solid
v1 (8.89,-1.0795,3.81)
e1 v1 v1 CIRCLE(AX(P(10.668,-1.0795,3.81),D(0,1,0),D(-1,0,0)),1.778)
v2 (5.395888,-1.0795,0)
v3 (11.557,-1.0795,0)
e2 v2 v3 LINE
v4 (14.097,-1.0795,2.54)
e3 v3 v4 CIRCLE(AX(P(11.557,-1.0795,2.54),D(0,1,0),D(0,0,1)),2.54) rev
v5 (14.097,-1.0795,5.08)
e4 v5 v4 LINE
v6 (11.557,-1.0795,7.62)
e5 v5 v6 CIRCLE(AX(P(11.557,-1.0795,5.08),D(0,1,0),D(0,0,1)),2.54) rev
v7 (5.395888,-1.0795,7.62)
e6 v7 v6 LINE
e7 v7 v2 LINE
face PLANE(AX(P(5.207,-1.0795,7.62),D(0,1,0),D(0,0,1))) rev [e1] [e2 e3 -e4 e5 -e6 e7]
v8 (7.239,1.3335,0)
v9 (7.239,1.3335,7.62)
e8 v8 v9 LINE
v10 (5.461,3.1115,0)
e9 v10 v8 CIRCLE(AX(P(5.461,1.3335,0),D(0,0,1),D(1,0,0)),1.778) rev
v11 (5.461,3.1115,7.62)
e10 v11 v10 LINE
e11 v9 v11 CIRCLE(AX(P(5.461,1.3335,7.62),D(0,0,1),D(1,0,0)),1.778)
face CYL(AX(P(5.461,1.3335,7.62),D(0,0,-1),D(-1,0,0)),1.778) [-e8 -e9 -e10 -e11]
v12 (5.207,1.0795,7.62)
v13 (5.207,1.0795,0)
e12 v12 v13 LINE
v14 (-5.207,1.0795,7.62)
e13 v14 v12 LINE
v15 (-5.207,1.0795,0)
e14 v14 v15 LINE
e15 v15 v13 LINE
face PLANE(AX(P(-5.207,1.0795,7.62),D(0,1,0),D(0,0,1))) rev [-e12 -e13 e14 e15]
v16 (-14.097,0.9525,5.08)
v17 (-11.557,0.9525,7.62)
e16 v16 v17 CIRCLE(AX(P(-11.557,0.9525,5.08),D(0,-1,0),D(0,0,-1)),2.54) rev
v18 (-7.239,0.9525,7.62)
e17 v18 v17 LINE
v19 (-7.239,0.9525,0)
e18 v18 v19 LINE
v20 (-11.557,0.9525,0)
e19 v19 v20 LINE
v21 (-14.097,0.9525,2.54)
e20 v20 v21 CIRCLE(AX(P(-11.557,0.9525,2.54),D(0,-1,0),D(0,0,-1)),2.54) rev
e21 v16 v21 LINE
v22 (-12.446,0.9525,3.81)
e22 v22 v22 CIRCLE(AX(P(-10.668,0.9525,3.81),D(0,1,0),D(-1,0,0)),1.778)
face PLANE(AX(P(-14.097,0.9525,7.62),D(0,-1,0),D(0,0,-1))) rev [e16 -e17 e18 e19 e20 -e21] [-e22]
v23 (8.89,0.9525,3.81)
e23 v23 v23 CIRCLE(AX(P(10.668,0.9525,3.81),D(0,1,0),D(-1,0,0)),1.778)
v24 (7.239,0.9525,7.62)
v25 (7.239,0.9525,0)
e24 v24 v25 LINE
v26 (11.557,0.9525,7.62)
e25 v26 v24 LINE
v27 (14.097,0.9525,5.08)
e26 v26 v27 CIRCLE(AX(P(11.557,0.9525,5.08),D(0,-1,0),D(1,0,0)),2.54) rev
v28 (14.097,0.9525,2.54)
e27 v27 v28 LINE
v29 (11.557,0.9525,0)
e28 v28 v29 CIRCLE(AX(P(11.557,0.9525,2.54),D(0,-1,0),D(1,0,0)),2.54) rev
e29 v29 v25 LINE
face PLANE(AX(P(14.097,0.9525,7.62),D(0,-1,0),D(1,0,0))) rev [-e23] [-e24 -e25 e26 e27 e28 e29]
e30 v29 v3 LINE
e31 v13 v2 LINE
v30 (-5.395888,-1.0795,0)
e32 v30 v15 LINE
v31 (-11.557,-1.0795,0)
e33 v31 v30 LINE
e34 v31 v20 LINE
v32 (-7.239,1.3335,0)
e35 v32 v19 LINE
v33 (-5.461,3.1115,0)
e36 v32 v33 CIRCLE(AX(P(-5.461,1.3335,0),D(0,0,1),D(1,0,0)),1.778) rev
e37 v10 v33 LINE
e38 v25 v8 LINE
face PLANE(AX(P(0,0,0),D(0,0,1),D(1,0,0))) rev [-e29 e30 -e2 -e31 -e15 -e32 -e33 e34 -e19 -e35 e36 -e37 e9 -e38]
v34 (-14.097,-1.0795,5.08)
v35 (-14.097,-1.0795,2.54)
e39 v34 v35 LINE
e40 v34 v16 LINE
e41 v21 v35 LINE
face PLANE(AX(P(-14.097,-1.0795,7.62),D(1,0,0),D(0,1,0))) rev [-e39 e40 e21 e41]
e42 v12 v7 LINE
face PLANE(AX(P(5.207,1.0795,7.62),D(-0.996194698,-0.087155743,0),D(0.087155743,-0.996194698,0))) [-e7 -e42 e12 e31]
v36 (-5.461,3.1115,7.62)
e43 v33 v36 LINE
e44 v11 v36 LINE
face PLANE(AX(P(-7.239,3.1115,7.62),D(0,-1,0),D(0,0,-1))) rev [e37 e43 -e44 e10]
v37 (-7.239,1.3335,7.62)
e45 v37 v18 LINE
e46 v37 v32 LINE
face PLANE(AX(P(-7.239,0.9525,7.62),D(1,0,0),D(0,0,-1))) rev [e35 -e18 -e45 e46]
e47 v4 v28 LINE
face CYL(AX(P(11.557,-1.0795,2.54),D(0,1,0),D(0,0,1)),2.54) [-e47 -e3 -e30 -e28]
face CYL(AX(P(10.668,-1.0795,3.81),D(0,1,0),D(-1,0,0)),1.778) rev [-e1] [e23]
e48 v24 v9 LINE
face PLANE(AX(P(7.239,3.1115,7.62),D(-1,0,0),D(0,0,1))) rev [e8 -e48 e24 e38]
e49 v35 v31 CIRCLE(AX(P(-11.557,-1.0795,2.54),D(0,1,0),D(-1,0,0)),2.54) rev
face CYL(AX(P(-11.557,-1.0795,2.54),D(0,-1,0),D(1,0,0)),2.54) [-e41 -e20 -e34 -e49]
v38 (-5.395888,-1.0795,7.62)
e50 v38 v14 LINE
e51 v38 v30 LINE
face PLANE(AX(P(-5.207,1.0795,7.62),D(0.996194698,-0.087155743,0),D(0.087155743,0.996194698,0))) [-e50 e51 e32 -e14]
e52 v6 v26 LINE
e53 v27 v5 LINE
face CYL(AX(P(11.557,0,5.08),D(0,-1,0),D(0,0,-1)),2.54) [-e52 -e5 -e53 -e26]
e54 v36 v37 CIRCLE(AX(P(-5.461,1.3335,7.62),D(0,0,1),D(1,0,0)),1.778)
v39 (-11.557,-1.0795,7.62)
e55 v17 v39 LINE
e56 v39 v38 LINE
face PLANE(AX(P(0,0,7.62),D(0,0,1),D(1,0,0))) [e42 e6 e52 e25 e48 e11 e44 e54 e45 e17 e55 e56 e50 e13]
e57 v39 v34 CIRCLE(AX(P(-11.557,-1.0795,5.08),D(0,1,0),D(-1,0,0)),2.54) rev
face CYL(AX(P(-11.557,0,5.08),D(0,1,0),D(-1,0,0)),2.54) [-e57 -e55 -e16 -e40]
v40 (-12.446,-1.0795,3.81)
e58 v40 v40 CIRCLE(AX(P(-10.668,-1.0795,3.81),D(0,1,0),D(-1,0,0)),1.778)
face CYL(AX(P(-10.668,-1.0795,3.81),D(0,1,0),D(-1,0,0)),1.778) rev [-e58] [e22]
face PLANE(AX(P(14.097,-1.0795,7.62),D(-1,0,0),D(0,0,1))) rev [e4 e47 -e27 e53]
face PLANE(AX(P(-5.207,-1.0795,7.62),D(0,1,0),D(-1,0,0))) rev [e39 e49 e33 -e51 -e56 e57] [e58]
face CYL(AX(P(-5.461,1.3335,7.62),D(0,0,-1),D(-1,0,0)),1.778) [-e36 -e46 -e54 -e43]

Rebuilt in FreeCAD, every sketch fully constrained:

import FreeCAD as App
import Part
import Sketcher
Q = App.Units.Quantity


def edges_at(feature, points):
    """Names of the edges that pass closest to the given points."""
    edges = feature.Shape.Edges
    near = lambda p: min(range(len(edges)), key=lambda i: edges[i].distToShape(Part.Vertex(*p))[0])
    return sorted({f"Edge{near(p) + 1}" for p in points})


def faces_at(feature, points):
    """Names of the faces that lie closest to the given points."""
    faces = feature.Shape.Faces
    near = lambda p: min(range(len(faces)), key=lambda i: faces[i].distToShape(Part.Vertex(*p))[0])
    return sorted({f"Face{near(p) + 1}" for p in points})


def add_polygon(sketch, points):
    """Adds a closed chain of lines whose ends are joined by coincident constraints."""
    first, n = sketch.GeometryCount, len(points)
    for a, b in zip(points, points[1:] + points[:1]):
        sketch.addGeometry(Part.LineSegment(App.Vector(*a, 0), App.Vector(*b, 0)), False)
    for i in range(n):
        sketch.addConstraint(Sketcher.Constraint("Coincident", first + i, 2, first + (i + 1) % n, 1))

doc = App.newDocument("Part")
body = doc.addObject("PartDesign::Body", "Body")

sketch1 = body.newObject("Sketcher::SketchObject", "Sketch")
sketch1.AttachmentSupport = (doc.getObject("XY_Plane"), [""])
sketch1.MapMode = "FlatFace"
add_polygon(sketch1, [(-7.2, 3.1), (-7.2, 1), (-14.1, 1), (-14.1, -1.1), (-5.2, -1.1), (-5.2, 1.1), (5.2, 1.1), (5.2, -1.1), (14.1, -1.1), (14.1, 1), (7.2, 1), (7.2, 3.1)])
sketch1.addConstraint(Sketcher.Constraint("Vertical", 0))
sketch1.addConstraint(Sketcher.Constraint("Horizontal", 1))
sketch1.addConstraint(Sketcher.Constraint("Vertical", 2))
sketch1.addConstraint(Sketcher.Constraint("Horizontal", 3))
sketch1.addConstraint(Sketcher.Constraint("Vertical", 4))
sketch1.addConstraint(Sketcher.Constraint("Horizontal", 5))
sketch1.addConstraint(Sketcher.Constraint("Vertical", 6))
sketch1.addConstraint(Sketcher.Constraint("Horizontal", 7))
sketch1.addConstraint(Sketcher.Constraint("Vertical", 8))
sketch1.addConstraint(Sketcher.Constraint("Horizontal", 9))
sketch1.addConstraint(Sketcher.Constraint("Vertical", 10))
sketch1.addConstraint(Sketcher.Constraint("Horizontal", 11))
sketch1.addConstraint(Sketcher.Constraint("Symmetric", 3, 2, 5, 2, -1, 1))
sketch1.addConstraint(Sketcher.Constraint("Symmetric", 2, 2, 7, 2, -2))
sketch1.addConstraint(Sketcher.Constraint("Symmetric", 0, 2, 9, 2, -2))
sketch1.addConstraint(Sketcher.Constraint("Equal", 0, 4))
sketch1.addConstraint(Sketcher.Constraint("DistanceX", 1, 2, 1, 1, Q("0.27 in")))
sketch1.addConstraint(Sketcher.Constraint("DistanceX", 3, 1, 3, 2, Q("0.35 in")))
sketch1.addConstraint(Sketcher.Constraint("DistanceX", 5, 1, 5, 2, Q("0.41 in")))
sketch1.addConstraint(Sketcher.Constraint("DistanceY", 2, 2, 2, 1, Q("0.08 in")))
sketch1.addConstraint(Sketcher.Constraint("DistanceY", 0, 2, 0, 1, Q("0.085 in")))
pad1 = body.newObject("PartDesign::Pad", "Pad")
pad1.Profile = sketch1
pad1.Length = Q("0.3 in")

sketch2 = body.newObject("Sketcher::SketchObject", "Sketch001")
sketch2.AttachmentSupport = (doc.getObject("XZ_Plane"), [""])
sketch2.MapMode = "FlatFace"
sketch2.AttachmentOffset = App.Placement(App.Vector(0, 0, -0.0375 * 25.4), App.Rotation())
sketch2.addGeometry(Part.Circle(App.Vector(-10.7, 3.8, 0), App.Vector(0, 0, 1), 1.8), False)
sketch2.addGeometry(Part.Circle(App.Vector(10.7, 3.8, 0), App.Vector(0, 0, 1), 1.8), False)
sketch2.addConstraint(Sketcher.Constraint("Equal", 0, 1))
sketch2.addConstraint(Sketcher.Constraint("Symmetric", 0, 3, 1, 3, -2))
sketch2.addConstraint(Sketcher.Constraint("Diameter", 0, Q("0.14 in")))
sketch2.addConstraint(Sketcher.Constraint("DistanceX", 0, 3, -1, 1, Q("0.42 in")))
sketch2.addConstraint(Sketcher.Constraint("DistanceY", -1, 1, 0, 3, Q("0.15 in")))
pocket1 = body.newObject("PartDesign::Pocket", "Pocket")
pocket1.Profile = sketch2
pocket1.Type = "ThroughAll"
pocket1.Reversed = True
doc.recompute()

fillet = body.newObject("PartDesign::Fillet", "Fillet")
fillet.Base = (pocket1, edges_at(pocket1, [
    (-14.097, -0.064, 0),
    (14.097, -0.064, 0),
    (-14.097, -0.064, 7.62),
    (14.097, -0.064, 7.62),
]))
fillet.Radius = Q("0.1 in")
doc.recompute()

fillet2 = body.newObject("PartDesign::Fillet", "Fillet001")
fillet2.Base = (fillet, edges_at(fillet, [(-7.239, 3.111, 3.81), (7.239, 3.111, 3.81)]))
fillet2.Radius = Q("0.07 in")
doc.recompute()

datumplane = body.newObject("PartDesign::Plane", "DatumPlane")
datumplane.AttachmentSupport = (doc.getObject("XZ_Plane"), [""])
datumplane.MapMode = "FlatFace"
datumplane.AttachmentOffset = App.Placement(App.Vector(0, 0, -0.0425 * 25.4), App.Rotation())
draft = body.newObject("PartDesign::Draft", "Draft")
draft.Base = (fillet2, faces_at(fillet2, [(5.207, 0, 3.81), (-5.207, 0, 3.81)]))
draft.NeutralPlane = (datumplane, [""])
draft.Angle = 5
draft.Reversed = False

doc.recompute()
